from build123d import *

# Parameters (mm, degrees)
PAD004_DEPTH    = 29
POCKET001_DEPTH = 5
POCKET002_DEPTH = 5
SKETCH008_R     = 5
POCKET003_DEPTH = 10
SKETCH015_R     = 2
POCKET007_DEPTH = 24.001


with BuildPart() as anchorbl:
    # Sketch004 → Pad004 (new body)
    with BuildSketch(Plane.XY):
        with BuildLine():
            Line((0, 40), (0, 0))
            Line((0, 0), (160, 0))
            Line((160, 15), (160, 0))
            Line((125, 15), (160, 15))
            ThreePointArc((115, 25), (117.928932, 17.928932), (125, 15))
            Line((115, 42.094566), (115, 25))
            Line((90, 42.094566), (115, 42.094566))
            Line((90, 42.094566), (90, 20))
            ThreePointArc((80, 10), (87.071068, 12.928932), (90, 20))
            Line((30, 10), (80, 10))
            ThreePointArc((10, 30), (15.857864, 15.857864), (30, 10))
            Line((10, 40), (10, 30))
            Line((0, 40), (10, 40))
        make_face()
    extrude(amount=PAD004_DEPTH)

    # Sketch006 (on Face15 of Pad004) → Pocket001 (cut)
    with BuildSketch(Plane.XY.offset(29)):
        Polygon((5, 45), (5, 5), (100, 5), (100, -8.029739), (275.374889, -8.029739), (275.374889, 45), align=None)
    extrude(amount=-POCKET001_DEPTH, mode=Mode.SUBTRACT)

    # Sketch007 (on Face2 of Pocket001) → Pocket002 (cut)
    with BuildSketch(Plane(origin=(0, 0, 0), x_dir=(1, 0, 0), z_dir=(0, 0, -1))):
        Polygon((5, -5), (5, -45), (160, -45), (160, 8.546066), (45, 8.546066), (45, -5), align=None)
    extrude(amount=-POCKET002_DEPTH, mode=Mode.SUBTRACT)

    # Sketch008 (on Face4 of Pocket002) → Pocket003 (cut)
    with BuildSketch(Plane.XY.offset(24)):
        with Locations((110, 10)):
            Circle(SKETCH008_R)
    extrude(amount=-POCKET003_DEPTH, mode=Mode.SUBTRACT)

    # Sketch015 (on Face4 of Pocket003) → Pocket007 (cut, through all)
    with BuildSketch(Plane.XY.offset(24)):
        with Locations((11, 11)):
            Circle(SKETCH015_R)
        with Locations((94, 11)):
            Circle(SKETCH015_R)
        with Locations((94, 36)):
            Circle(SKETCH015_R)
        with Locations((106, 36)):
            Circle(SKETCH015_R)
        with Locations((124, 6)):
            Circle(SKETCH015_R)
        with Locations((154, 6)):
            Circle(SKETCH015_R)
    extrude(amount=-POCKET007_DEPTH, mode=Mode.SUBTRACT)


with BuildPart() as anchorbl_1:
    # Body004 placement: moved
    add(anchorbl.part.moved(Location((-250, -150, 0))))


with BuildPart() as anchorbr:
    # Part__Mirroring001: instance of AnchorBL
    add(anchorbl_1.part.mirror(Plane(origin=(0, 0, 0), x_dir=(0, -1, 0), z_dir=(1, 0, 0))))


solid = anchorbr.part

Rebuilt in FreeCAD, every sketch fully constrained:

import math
import FreeCAD as App
import Part
import Sketcher
Q = App.Units.Quantity

doc = App.newDocument("Part")
body = doc.addObject("PartDesign::Body", "Body")

# Sketch on XY plane
sketch1 = doc.addObject("Sketcher::SketchObject", "Sketch")
body.addObject(sketch1)
sketch1.AttachmentSupport = (doc.XY_Plane, [""])
sketch1.MapMode = "FlatFace"
sketch1.addGeometry([
    Part.LineSegment(App.Vector(0, 40, 0), App.Vector(0, 0, 0)),  # 0
    Part.LineSegment(App.Vector(0, 0, 0), App.Vector(160, 0, 0)),  # 1
    Part.LineSegment(App.Vector(160, 0, 0), App.Vector(160, 15, 0)),  # 2
    Part.LineSegment(App.Vector(160, 15, 0), App.Vector(125, 15, 0)),  # 3
    Part.ArcOfCircle(Part.Circle(App.Vector(125, 25, 0), App.Vector(0, 0, 1), 10), math.radians(180), math.radians(270)),  # 4
    Part.LineSegment(App.Vector(115, 25, 0), App.Vector(115, 42, 0)),  # 5
    Part.LineSegment(App.Vector(115, 42, 0), App.Vector(90, 42, 0)),  # 6
    Part.LineSegment(App.Vector(90, 42, 0), App.Vector(90, 20, 0)),  # 7
    Part.ArcOfCircle(Part.Circle(App.Vector(80, 20, 0), App.Vector(0, 0, 1), 10), math.radians(-90), math.radians(0)),  # 8
    Part.LineSegment(App.Vector(80, 10, 0), App.Vector(30, 10, 0)),  # 9
    Part.ArcOfCircle(Part.Circle(App.Vector(30, 30, 0), App.Vector(0, 0, 1), 20), math.radians(180), math.radians(270)),  # 10
    Part.LineSegment(App.Vector(10, 30, 0), App.Vector(10, 40, 0)),  # 11
    Part.LineSegment(App.Vector(10, 40, 0), App.Vector(0, 40, 0)),  # 12
], False)
sketch1.addConstraint([
    Sketcher.Constraint("Coincident", 0, 2, 1, 1),
    Sketcher.Constraint("Coincident", 1, 2, 2, 1),
    Sketcher.Constraint("Coincident", 2, 2, 3, 1),
    Sketcher.Constraint("Tangent", 3, 2, 4, 2),
    Sketcher.Constraint("Tangent", 4, 1, 5, 1),
    Sketcher.Constraint("Coincident", 5, 2, 6, 1),
    Sketcher.Constraint("Coincident", 6, 2, 7, 1),
    Sketcher.Constraint("Tangent", 7, 2, 8, 2),
    Sketcher.Constraint("Tangent", 8, 1, 9, 1),
    Sketcher.Constraint("Tangent", 9, 2, 10, 2),
    Sketcher.Constraint("Tangent", 10, 1, 11, 1),
    Sketcher.Constraint("Coincident", 11, 2, 12, 1),
    Sketcher.Constraint("Coincident", 12, 2, 0, 1),
    Sketcher.Constraint("Vertical", 0),
    Sketcher.Constraint("Horizontal", 1),
    Sketcher.Constraint("Vertical", 2),
    Sketcher.Constraint("Horizontal", 3),
    Sketcher.Constraint("Vertical", 5),
    Sketcher.Constraint("Horizontal", 6),
    Sketcher.Constraint("Vertical", 7),
    Sketcher.Constraint("Horizontal", 9),
    Sketcher.Constraint("Vertical", 11),
    Sketcher.Constraint("Horizontal", 12),
    Sketcher.Constraint("Coincident", 0, 2, -1, 1),
    Sketcher.Constraint("Equal", 4, 8),
    Sketcher.Constraint("Equal", 12, 11),
    Sketcher.Constraint("Radius", 4, Q("9.999999 mm")),
    Sketcher.Constraint("Radius", 10, Q("19.999999 mm")),
    Sketcher.Constraint("DistanceX", 1, 1, 1, 2, Q("160 mm")),
    Sketcher.Constraint("DistanceX", 3, 2, 3, 1, Q("35 mm")),
    Sketcher.Constraint("DistanceX", 6, 2, 6, 1, Q("25 mm")),
    Sketcher.Constraint("DistanceX", 9, 2, 9, 1, Q("50 mm")),
    Sketcher.Constraint("DistanceY", 0, 2, 0, 1, Q("40 mm")),
    Sketcher.Constraint("DistanceY", 2, 1, 2, 2, Q("15 mm")),
    Sketcher.Constraint("DistanceY", 5, 1, 5, 2, Q("17.094566 mm")),
])
pad1 = doc.addObject("PartDesign::Pad", "Pad")
body.addObject(pad1)
pad1.Profile = sketch1
pad1.Length = 29

# Sketch on XY plane
sketch2 = doc.addObject("Sketcher::SketchObject", "Sketch001")
body.addObject(sketch2)
sketch2.AttachmentSupport = (doc.XY_Plane, [""])
sketch2.MapMode = "FlatFace"
sketch2.AttachmentOffset = App.Placement(App.Vector(0, 0, 29), App.Rotation())
sketch2.addGeometry([
    Part.LineSegment(App.Vector(5, 45, 0), App.Vector(5, 5, 0)),  # 0
    Part.LineSegment(App.Vector(5, 5, 0), App.Vector(100, 5, 0)),  # 1
    Part.LineSegment(App.Vector(100, 5, 0), App.Vector(100, -8, 0)),  # 2
    Part.LineSegment(App.Vector(100, -8, 0), App.Vector(275, -8, 0)),  # 3
    Part.LineSegment(App.Vector(275, -8, 0), App.Vector(275, 45, 0)),  # 4
    Part.LineSegment(App.Vector(275, 45, 0), App.Vector(5, 45, 0)),  # 5
], False)
sketch2.addConstraint([
    Sketcher.Constraint("Coincident", 0, 2, 1, 1),
    Sketcher.Constraint("Coincident", 1, 2, 2, 1),
    Sketcher.Constraint("Coincident", 2, 2, 3, 1),
    Sketcher.Constraint("Coincident", 3, 2, 4, 1),
    Sketcher.Constraint("Coincident", 4, 2, 5, 1),
    Sketcher.Constraint("Coincident", 5, 2, 0, 1),
    Sketcher.Constraint("Vertical", 0),
    Sketcher.Constraint("Horizontal", 1),
    Sketcher.Constraint("Vertical", 2),
    Sketcher.Constraint("Horizontal", 3),
    Sketcher.Constraint("Vertical", 4),
    Sketcher.Constraint("Horizontal", 5),
    Sketcher.Constraint("DistanceX", 1, 1, 1, 2, Q("95 mm")),
    Sketcher.Constraint("DistanceY", 0, 2, 0, 1, Q("40 mm")),
    Sketcher.Constraint("DistanceX", -1, 1, 0, 2, Q("5 mm")),
    Sketcher.Constraint("DistanceY", -1, 1, 0, 2, Q("5 mm")),
    Sketcher.Constraint("DistanceX", 3, 1, 3, 2, Q("175.374889 mm")),
    Sketcher.Constraint("DistanceY", 2, 2, 2, 1, Q("13.029739 mm")),
])
pocket1 = doc.addObject("PartDesign::Pocket", "Pocket")
body.addObject(pocket1)
pocket1.Profile = sketch2
pocket1.Length = 5

# Sketch on XY plane
sketch3 = doc.addObject("Sketcher::SketchObject", "Sketch002")
body.addObject(sketch3)
sketch3.AttachmentSupport = (doc.XY_Plane, [""])
sketch3.MapMode = "FlatFace"
sketch3.addGeometry([
    Part.LineSegment(App.Vector(5, 5, 0), App.Vector(5, 45, 0)),  # 0
    Part.LineSegment(App.Vector(5, 45, 0), App.Vector(160, 45, 0)),  # 1
    Part.LineSegment(App.Vector(160, 45, 0), App.Vector(160, -9, 0)),  # 2
    Part.LineSegment(App.Vector(160, -9, 0), App.Vector(45, -9, 0)),  # 3
    Part.LineSegment(App.Vector(45, -9, 0), App.Vector(45, 5, 0)),  # 4
    Part.LineSegment(App.Vector(45, 5, 0), App.Vector(5, 5, 0)),  # 5
], False)
sketch3.addConstraint([
    Sketcher.Constraint("Coincident", 0, 2, 1, 1),
    Sketcher.Constraint("Coincident", 1, 2, 2, 1),
    Sketcher.Constraint("Coincident", 2, 2, 3, 1),
    Sketcher.Constraint("Coincident", 3, 2, 4, 1),
    Sketcher.Constraint("Coincident", 4, 2, 5, 1),
    Sketcher.Constraint("Coincident", 5, 2, 0, 1),
    Sketcher.Constraint("Vertical", 0),
    Sketcher.Constraint("Horizontal", 1),
    Sketcher.Constraint("Vertical", 2),
    Sketcher.Constraint("Horizontal", 3),
    Sketcher.Constraint("Vertical", 4),
    Sketcher.Constraint("Horizontal", 5),
    Sketcher.Constraint("Equal", 5, 0),
    Sketcher.Constraint("DistanceX", 1, 1, 1, 2, Q("155 mm")),
    Sketcher.Constraint("DistanceX", 3, 2, 3, 1, Q("115 mm")),
    Sketcher.Constraint("DistanceX", -1, 1, 0, 2, Q("5 mm")),
    Sketcher.Constraint("DistanceY", -1, 1, 0, 2, Q("45 mm")),
    Sketcher.Constraint("DistanceY", 2, 2, 2, 1, Q("53.546066 mm")),
])
pocket2 = doc.addObject("PartDesign::Pocket", "Pocket001")
body.addObject(pocket2)
pocket2.Profile = sketch3
pocket2.Length = 5
pocket2.Reversed = True

# Sketch on XY plane
sketch4 = doc.addObject("Sketcher::SketchObject", "Sketch003")
body.addObject(sketch4)
sketch4.AttachmentSupport = (doc.XY_Plane, [""])
sketch4.MapMode = "FlatFace"
sketch4.AttachmentOffset = App.Placement(App.Vector(0, 0, 24), App.Rotation())
sketch4.addGeometry(Part.Circle(App.Vector(110, 10, 0), App.Vector(0, 0, 1), 5), False)
sketch4.addConstraint([
    Sketcher.Constraint("Diameter", 0, Q("10 mm")),
    Sketcher.Constraint("DistanceX", -1, 1, 0, 3, Q("110 mm")),
    Sketcher.Constraint("DistanceY", -1, 1, 0, 3, Q("10 mm")),
])
pocket3 = doc.addObject("PartDesign::Pocket", "Pocket002")
body.addObject(pocket3)
pocket3.Profile = sketch4
pocket3.Length = 10

# Sketch on XY plane
sketch5 = doc.addObject("Sketcher::SketchObject", "Sketch004")
body.addObject(sketch5)
sketch5.AttachmentSupport = (doc.XY_Plane, [""])
sketch5.MapMode = "FlatFace"
sketch5.AttachmentOffset = App.Placement(App.Vector(0, 0, 24), App.Rotation())
sketch5.addGeometry([
    Part.Circle(App.Vector(11, 11, 0), App.Vector(0, 0, 1), 2),  # 0
    Part.Circle(App.Vector(94, 11, 0), App.Vector(0, 0, 1), 2),  # 1
    Part.Circle(App.Vector(94, 36, 0), App.Vector(0, 0, 1), 2),  # 2
    Part.Circle(App.Vector(106, 36, 0), App.Vector(0, 0, 1), 2),  # 3
    Part.Circle(App.Vector(124, 6, 0), App.Vector(0, 0, 1), 2),  # 4
    Part.Circle(App.Vector(154, 6, 0), App.Vector(0, 0, 1), 2),  # 5
], False)
sketch5.addConstraint([
    Sketcher.Constraint("Equal", 0, 1),
    Sketcher.Constraint("Equal", 1, 2),
    Sketcher.Constraint("Equal", 2, 3),
    Sketcher.Constraint("Equal", 3, 4),
    Sketcher.Constraint("Equal", 4, 5),
    Sketcher.Constraint("Horizontal", 0, 3, 1, 3),
    Sketcher.Constraint("Horizontal", 2, 3, 3, 3),
    Sketcher.Constraint("Horizontal", 4, 3, 5, 3),
    Sketcher.Constraint("Vertical", 1, 3, 2, 3),
    Sketcher.Constraint("Diameter", 0, Q("4 mm")),
    Sketcher.Constraint("DistanceX", -1, 1, 0, 3, Q("11 mm")),
    Sketcher.Constraint("DistanceY", -1, 1, 0, 3, Q("11 mm")),
    Sketcher.Constraint("DistanceX", -1, 1, 1, 3, Q("94 mm")),
    Sketcher.Constraint("DistanceY", -1, 1, 2, 3, Q("36 mm")),
    Sketcher.Constraint("DistanceX", -1, 1, 3, 3, Q("106 mm")),
    Sketcher.Constraint("DistanceX", -1, 1, 4, 3, Q("124 mm")),
    Sketcher.Constraint("DistanceY", -1, 1, 4, 3, Q("6 mm")),
    Sketcher.Constraint("DistanceX", -1, 1, 5, 3, Q("154 mm")),
])
pocket4 = doc.addObject("PartDesign::Pocket", "Pocket003")
body.addObject(pocket4)
pocket4.Profile = sketch5
pocket4.Type = "ThroughAll"
body2 = doc.addObject("PartDesign::Body", "Body001")
doc.recompute()

body.Placement = App.Placement(App.Vector(-250, -150, 0), App.Rotation(App.Vector(0, 0, 1), 0))
boolean = doc.addObject("PartDesign::Boolean", "Boolean")
body2.addObject(boolean)
boolean.Type = "Fuse"
boolean.addObjects([body])
body3 = doc.addObject("PartDesign::Body", "Body002")
doc.recompute()

mirroring = doc.addObject("Part::Mirroring", "Mirroring")
mirroring.Source = body2
mirroring.Base = App.Vector(0, 0, 0)
mirroring.Normal = App.Vector(1, 0, 0)
body3.BaseFeature = mirroring
doc.recompute()
body2.Visibility = False
mirroring.Visibility = False

doc.recompute()
